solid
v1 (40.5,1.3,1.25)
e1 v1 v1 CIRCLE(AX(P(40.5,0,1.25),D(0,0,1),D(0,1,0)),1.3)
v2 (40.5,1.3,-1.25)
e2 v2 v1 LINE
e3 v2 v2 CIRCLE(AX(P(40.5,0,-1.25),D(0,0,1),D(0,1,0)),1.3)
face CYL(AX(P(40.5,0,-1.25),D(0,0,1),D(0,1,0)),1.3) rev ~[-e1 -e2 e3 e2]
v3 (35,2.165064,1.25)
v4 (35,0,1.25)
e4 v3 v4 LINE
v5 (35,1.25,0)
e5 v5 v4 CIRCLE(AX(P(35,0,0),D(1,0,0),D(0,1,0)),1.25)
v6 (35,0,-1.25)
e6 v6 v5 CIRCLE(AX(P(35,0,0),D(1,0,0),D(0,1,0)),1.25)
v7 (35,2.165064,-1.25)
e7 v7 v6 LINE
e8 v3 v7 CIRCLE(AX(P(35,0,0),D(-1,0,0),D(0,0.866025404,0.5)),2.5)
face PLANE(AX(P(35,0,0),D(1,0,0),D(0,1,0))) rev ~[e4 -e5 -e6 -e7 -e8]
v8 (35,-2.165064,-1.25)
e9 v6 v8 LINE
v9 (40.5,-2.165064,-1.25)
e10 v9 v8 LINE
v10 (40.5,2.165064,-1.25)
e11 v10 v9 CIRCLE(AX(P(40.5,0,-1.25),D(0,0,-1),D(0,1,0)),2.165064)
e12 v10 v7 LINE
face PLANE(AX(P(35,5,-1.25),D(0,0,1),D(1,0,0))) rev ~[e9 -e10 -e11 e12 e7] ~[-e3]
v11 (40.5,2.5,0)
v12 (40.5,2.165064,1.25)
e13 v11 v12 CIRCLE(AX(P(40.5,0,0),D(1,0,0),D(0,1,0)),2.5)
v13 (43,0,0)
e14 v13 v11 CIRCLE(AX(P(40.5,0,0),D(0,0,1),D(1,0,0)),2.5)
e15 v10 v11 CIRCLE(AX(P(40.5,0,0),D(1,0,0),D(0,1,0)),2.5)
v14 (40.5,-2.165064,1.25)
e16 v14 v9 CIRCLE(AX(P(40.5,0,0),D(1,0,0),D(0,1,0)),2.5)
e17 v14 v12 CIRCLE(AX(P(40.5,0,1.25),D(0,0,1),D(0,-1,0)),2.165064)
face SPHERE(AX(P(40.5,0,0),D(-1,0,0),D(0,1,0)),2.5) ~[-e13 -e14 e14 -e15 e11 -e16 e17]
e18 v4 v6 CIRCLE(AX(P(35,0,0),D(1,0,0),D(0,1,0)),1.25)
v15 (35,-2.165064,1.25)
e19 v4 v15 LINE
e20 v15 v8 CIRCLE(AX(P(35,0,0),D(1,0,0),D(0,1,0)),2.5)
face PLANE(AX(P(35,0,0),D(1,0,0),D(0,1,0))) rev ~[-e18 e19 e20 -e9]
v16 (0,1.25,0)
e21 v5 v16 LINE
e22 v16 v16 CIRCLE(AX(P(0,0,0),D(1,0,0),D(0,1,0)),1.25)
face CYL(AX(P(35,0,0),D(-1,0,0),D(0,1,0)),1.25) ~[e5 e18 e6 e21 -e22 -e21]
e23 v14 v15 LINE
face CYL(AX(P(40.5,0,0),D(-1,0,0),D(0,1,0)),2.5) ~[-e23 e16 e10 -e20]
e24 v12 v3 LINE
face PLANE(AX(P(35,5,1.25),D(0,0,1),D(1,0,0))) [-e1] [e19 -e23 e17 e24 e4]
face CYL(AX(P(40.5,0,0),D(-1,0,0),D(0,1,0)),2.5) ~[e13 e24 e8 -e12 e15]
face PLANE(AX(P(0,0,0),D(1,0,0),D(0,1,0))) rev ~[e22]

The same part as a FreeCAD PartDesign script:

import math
import FreeCAD as App
import Part
import Sketcher

doc = App.newDocument("Part")
body = doc.addObject("PartDesign::Body", "Body")

# Sketch on XY plane
sketch1 = doc.addObject("Sketcher::SketchObject", "Sketch")
body.addObject(sketch1)
sketch1.AttachmentSupport = (doc.XY_Plane, [""])
sketch1.MapMode = "FlatFace"
sketch1.addGeometry([
    Part.LineSegment(App.Vector(0, 1.2, 0), App.Vector(0, 0, 0)),  # 0
    Part.LineSegment(App.Vector(0, 0, 0), App.Vector(43, 0, 0)),  # 1
    Part.ArcOfCircle(Part.Circle(App.Vector(40.5, 0, 0), App.Vector(0, 0, 1), 2.5), math.radians(0), math.radians(90)),  # 2
    Part.LineSegment(App.Vector(40.5, 2.5, 0), App.Vector(35, 2.5, 0)),  # 3
    Part.LineSegment(App.Vector(35, 2.5, 0), App.Vector(35, 1.2, 0)),  # 4
    Part.LineSegment(App.Vector(35, 1.2, 0), App.Vector(0, 1.2, 0)),  # 5
], False)
sketch1.addConstraint([
    Sketcher.Constraint("Coincident", 0, 2, 1, 1),
    Sketcher.Constraint("Coincident", 1, 2, 2, 1),
    Sketcher.Constraint("Tangent", 2, 2, 3, 1),
    Sketcher.Constraint("Coincident", 3, 2, 4, 1),
    Sketcher.Constraint("Coincident", 4, 2, 5, 1),
    Sketcher.Constraint("Coincident", 5, 2, 0, 1),
    Sketcher.Constraint("Vertical", 0),
    Sketcher.Constraint("Horizontal", 1),
    Sketcher.Constraint("Horizontal", 3),
    Sketcher.Constraint("Vertical", 4),
    Sketcher.Constraint("Horizontal", 5),
    Sketcher.Constraint("Coincident", 0, 2, -1, 1),
    Sketcher.Constraint("PointOnObject", 2, 3, -1),
    Sketcher.Constraint("Equal", 0, 4),
    Sketcher.Constraint("Radius", 2, 2.5),
    Sketcher.Constraint("DistanceX", 3, 2, 3, 1, 5.5),
    Sketcher.Constraint("DistanceX", -1, 1, 2, 3, 40.5),
])
revolution = doc.addObject("PartDesign::Revolution", "Revolution")
body.addObject(revolution)
revolution.Profile = sketch1
revolution.ReferenceAxis = (sketch1, ["H_Axis"])
revolution.Angle = 360

# Sketch on XZ plane
sketch2 = doc.addObject("Sketcher::SketchObject", "Sketch001")
body.addObject(sketch2)
sketch2.AttachmentSupport = (doc.XZ_Plane, [""])
sketch2.MapMode = "FlatFace"
sketch2.AttachmentOffset = App.Placement(App.Vector(0, 0, -5), App.Rotation())
sketch2.addGeometry([
    Part.LineSegment(App.Vector(35, 2.5, 0), App.Vector(40.5, 2.5, 0)),  # 0
    Part.ArcOfCircle(Part.Circle(App.Vector(40.5, 0, 0), App.Vector(0, 0, 1), 2.5), math.radians(30), math.radians(90)),  # 1
    Part.LineSegment(App.Vector(42.7, 1.2, 0), App.Vector(35, 1.2, 0)),  # 2
    Part.LineSegment(App.Vector(35, 1.2, 0), App.Vector(35, 2.5, 0)),  # 3
    Part.LineSegment(App.Vector(35, -1.2, 0), App.Vector(42.7, -1.2, 0)),  # 4
    Part.ArcOfCircle(Part.Circle(App.Vector(40.5, 0, 0), App.Vector(0, 0, 1), 2.5), math.radians(-90), math.radians(-30)),  # 5
    Part.LineSegment(App.Vector(40.5, -2.5, 0), App.Vector(35, -2.5, 0)),  # 6
    Part.LineSegment(App.Vector(35, -2.5, 0), App.Vector(35, -1.2, 0)),  # 7
], False)
sketch2.addConstraint([
    Sketcher.Constraint("Tangent", 0, 2, 1, 2),
    Sketcher.Constraint("Coincident", 1, 1, 2, 1),
    Sketcher.Constraint("Coincident", 2, 2, 3, 1),
    Sketcher.Constraint("Coincident", 3, 2, 0, 1),
    Sketcher.Constraint("Coincident", 4, 2, 5, 2),
    Sketcher.Constraint("Tangent", 5, 1, 6, 1),
    Sketcher.Constraint("Coincident", 6, 2, 7, 1),
    Sketcher.Constraint("Coincident", 7, 2, 4, 1),
    Sketcher.Constraint("Horizontal", 0),
    Sketcher.Constraint("Horizontal", 2),
    Sketcher.Constraint("Vertical", 3),
    Sketcher.Constraint("Horizontal", 4),
    Sketcher.Constraint("Horizontal", 6),
    Sketcher.Constraint("Vertical", 7),
    Sketcher.Constraint("Coincident", 5, 3, 1, 3),
    Sketcher.Constraint("Equal", 1, 5),
    Sketcher.Constraint("Symmetric", 1, 1, 4, 2, -1),
    Sketcher.Constraint("Vertical", 3, 2, 6, 2),
    Sketcher.Constraint("Radius", 1, 2.5),
    Sketcher.Constraint("DistanceY", 3, 1, 3, 2, 1.25),
    Sketcher.Constraint("DistanceX", 0, 1, 0, 2, 5.5),
    Sketcher.Constraint("DistanceX", -1, 1, 2, 2, 35.0),
])
pocket1 = doc.addObject("PartDesign::Pocket", "Pocket")
body.addObject(pocket1)
pocket1.Profile = sketch2
pocket1.Length = 10
pocket1.Reversed = True

# Sketch on XY plane
sketch3 = doc.addObject("Sketcher::SketchObject", "Sketch002")
body.addObject(sketch3)
sketch3.AttachmentSupport = (doc.XY_Plane, [""])
sketch3.MapMode = "FlatFace"
sketch3.AttachmentOffset = App.Placement(App.Vector(0, 0, -1.25), App.Rotation())
sketch3.addGeometry(Part.Circle(App.Vector(40.5, 0, 0), App.Vector(0, 0, 1), 1.3), False)
sketch3.addConstraint([
    Sketcher.Constraint("PointOnObject", 0, 3, -1),
    Sketcher.Constraint("Diameter", 0, 2.6),
    Sketcher.Constraint("DistanceX", -1, 1, 0, 3, 40.5),
])
doc.recompute()
hole = doc.addObject("PartDesign::Hole", "Hole")
body.addObject(hole)
hole.Profile = sketch3
hole.ThreadType = "None"
hole.Diameter = 2.6
hole.DepthType = "Dimension"
hole.Depth = 2.5
hole.DrillPoint = "Flat"
hole.Reversed = True

doc.recompute()
